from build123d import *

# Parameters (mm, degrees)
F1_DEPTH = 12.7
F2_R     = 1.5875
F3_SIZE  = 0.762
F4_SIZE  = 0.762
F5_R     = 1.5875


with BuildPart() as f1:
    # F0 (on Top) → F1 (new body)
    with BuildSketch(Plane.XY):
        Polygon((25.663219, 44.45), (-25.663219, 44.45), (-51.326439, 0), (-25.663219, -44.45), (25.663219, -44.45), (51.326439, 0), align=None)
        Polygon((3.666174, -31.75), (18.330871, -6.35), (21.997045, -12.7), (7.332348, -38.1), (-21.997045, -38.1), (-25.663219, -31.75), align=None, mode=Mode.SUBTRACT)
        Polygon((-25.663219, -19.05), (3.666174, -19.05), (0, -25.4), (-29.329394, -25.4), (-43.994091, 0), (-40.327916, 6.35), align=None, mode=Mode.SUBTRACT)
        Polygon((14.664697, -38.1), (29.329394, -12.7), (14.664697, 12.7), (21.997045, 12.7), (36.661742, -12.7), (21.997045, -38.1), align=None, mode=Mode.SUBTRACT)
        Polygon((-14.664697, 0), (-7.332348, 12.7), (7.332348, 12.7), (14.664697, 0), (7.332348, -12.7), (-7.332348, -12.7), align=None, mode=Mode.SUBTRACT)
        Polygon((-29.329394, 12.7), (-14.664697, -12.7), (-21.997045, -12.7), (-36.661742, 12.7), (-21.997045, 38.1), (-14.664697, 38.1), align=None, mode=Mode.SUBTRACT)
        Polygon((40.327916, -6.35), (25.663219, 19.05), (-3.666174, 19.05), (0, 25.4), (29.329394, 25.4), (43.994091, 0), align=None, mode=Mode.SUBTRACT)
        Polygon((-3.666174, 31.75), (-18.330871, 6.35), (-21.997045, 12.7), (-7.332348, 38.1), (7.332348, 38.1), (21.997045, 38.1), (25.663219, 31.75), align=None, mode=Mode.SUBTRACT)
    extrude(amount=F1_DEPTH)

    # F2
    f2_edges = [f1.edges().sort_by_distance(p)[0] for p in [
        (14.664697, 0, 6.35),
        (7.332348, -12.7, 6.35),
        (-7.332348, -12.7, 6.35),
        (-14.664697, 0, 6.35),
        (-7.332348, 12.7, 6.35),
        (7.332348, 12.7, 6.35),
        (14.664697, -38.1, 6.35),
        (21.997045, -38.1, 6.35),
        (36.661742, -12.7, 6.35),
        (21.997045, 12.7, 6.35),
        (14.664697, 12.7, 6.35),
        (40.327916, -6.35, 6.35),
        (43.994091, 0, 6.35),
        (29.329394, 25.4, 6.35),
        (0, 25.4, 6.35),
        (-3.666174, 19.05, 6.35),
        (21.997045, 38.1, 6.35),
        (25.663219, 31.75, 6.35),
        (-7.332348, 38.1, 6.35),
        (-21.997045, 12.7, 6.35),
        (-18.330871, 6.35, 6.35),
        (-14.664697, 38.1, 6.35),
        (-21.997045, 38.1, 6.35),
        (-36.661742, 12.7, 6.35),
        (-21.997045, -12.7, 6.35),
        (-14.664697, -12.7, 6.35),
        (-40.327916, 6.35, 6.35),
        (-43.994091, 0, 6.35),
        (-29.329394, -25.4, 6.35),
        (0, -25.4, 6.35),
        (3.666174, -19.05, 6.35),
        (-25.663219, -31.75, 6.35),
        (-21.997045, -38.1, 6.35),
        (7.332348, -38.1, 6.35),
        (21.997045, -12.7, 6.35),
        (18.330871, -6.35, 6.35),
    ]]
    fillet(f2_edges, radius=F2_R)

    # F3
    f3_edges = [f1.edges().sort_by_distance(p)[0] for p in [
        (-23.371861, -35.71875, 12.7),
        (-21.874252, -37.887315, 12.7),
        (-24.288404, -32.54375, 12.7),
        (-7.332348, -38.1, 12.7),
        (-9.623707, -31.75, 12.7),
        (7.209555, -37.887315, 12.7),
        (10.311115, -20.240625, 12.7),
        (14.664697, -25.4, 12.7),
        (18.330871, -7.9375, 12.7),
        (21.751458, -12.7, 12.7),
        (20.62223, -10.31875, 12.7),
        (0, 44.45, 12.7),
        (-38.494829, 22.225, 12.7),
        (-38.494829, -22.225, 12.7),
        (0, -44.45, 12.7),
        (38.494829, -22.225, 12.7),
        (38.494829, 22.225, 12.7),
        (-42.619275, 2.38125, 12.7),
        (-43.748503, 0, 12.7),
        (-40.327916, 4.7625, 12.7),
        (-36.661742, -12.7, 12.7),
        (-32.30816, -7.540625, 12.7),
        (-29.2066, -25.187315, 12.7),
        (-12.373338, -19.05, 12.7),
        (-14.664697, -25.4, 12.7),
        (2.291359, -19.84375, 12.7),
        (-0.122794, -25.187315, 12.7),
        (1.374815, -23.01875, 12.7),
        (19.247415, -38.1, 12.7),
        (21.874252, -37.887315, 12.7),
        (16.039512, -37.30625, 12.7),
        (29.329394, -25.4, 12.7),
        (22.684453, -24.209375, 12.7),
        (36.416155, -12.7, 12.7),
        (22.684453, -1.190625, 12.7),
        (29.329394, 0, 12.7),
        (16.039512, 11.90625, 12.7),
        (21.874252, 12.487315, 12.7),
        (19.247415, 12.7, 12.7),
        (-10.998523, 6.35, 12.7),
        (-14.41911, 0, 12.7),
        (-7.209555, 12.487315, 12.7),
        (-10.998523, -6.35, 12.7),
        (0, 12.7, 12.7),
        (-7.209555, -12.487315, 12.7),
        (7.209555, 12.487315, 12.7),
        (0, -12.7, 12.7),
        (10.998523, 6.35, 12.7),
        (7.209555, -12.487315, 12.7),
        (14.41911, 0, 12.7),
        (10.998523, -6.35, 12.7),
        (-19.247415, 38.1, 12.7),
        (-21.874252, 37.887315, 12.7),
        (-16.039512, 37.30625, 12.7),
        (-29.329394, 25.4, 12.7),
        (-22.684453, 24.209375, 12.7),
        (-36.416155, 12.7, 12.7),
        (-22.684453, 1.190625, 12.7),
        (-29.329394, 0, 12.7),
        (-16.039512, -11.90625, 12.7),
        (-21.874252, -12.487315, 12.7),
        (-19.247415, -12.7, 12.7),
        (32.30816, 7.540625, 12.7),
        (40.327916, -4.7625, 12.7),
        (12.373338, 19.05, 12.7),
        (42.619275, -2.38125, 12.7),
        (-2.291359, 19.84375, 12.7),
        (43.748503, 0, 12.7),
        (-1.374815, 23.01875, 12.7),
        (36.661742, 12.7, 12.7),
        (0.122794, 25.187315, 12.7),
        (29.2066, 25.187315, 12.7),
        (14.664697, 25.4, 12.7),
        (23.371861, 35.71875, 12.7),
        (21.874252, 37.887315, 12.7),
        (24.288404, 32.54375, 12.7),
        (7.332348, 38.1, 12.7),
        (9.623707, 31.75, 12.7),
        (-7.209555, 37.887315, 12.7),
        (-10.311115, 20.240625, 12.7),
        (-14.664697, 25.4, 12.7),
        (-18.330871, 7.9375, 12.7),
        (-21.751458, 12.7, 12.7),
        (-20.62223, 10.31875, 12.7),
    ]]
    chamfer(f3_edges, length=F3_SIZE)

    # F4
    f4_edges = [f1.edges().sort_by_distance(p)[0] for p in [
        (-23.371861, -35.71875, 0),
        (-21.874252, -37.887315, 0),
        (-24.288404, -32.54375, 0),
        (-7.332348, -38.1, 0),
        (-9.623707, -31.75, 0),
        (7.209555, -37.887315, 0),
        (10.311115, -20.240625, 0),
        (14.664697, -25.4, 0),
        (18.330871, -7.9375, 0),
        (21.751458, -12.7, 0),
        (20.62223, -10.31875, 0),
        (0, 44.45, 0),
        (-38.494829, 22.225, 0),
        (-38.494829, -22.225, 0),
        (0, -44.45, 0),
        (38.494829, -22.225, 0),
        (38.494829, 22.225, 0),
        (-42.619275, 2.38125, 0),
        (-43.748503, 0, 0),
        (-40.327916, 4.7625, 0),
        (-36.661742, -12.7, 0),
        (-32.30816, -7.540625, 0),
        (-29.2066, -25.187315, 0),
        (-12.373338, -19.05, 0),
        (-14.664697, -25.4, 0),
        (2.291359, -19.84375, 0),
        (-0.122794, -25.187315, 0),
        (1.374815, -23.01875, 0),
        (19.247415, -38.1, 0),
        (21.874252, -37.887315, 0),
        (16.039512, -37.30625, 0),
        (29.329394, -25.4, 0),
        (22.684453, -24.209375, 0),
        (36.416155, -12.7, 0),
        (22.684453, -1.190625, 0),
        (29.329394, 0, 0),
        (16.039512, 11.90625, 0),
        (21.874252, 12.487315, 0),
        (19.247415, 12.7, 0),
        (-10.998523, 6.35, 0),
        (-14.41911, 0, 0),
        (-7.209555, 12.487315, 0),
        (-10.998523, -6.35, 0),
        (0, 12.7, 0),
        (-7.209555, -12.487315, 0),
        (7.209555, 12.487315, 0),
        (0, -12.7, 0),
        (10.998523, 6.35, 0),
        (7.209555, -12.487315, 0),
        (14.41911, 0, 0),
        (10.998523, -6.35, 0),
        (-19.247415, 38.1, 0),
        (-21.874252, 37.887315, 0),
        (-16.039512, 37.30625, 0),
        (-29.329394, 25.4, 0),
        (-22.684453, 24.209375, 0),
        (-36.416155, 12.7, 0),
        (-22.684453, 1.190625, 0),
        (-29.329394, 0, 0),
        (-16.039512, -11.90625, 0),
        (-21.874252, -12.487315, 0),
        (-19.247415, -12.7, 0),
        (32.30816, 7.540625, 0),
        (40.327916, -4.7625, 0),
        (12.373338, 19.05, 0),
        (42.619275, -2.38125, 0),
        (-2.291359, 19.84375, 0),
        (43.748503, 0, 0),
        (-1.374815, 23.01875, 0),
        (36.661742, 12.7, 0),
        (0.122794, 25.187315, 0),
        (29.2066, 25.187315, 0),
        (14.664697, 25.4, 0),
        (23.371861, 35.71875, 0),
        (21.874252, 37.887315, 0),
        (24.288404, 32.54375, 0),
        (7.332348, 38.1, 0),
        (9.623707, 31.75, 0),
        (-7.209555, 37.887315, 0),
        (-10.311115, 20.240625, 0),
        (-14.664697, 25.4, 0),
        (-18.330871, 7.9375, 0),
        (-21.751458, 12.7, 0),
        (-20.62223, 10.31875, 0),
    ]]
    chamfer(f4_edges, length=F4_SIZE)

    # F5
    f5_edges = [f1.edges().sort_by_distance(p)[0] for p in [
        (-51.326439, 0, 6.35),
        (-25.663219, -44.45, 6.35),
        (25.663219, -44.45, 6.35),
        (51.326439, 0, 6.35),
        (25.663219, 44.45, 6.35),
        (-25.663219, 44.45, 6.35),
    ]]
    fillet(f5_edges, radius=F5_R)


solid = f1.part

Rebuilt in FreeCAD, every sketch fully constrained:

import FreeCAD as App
import Part
import Sketcher

V = App.Vector
Q = App.Units.Quantity


def edges_at(feature, points):
    """Names of the edges that pass closest to the given points."""
    edges = feature.Shape.Edges
    near = lambda p: min(range(len(edges)), key=lambda i: edges[i].distToShape(Part.Vertex(*p))[0])
    return sorted({f"Edge{near(p) + 1}" for p in points})

doc = App.newDocument("Part")
params = doc.addObject("Spreadsheet::Sheet", "Params")
for row, (alias, value) in enumerate([
    ("pad1_length", "0.5 in"),
    ("fillet_radius", "0.0625 in"),
    ("chamfer_size", "0.03 in"),
    ("chamfer2_size", "0.03 in"),
    ("fillet2_radius", "0.0625 in"),
], start=1):
    params.set(f"A{row}", alias)
    params.set(f"B{row}", "=" + value)
    params.setAlias(f"B{row}", alias)

body = doc.addObject("PartDesign::Body", "Body")

sketch1 = body.newObject("Sketcher::SketchObject", "Sketch")
sketch1.AttachmentSupport = (doc.getObject("XY_Plane"), [""])
sketch1.MapMode = "FlatFace"
sketch1.addGeometry([
    Part.LineSegment(V(26, 44, 0), V(-26, 44, 0)),
    Part.LineSegment(V(-26, 44, 0), V(-51, 0, 0)),
    Part.LineSegment(V(-51, 0, 0), V(-26, -44, 0)),
    Part.LineSegment(V(-26, -44, 0), V(26, -44, 0)),
    Part.LineSegment(V(26, -44, 0), V(51, 0, 0)),
    Part.LineSegment(V(51, 0, 0), V(26, 44, 0)),
    Part.LineSegment(V(-26, -32, 0), V(4, -32, 0)),
    Part.LineSegment(V(4, -32, 0), V(18, -6, 0)),
    Part.LineSegment(V(18, -6, 0), V(22, -13, 0)),
    Part.LineSegment(V(22, -13, 0), V(7, -38, 0)),
    Part.LineSegment(V(7, -38, 0), V(-22, -38, 0)),
    Part.LineSegment(V(-22, -38, 0), V(-26, -32, 0)),
    Part.LineSegment(V(-40, 6, 0), V(-26, -19, 0)),
    Part.LineSegment(V(-26, -19, 0), V(4, -19, 0)),
    Part.LineSegment(V(4, -19, 0), V(0, -25, 0)),
    Part.LineSegment(V(0, -25, 0), V(-29, -25, 0)),
    Part.LineSegment(V(-29, -25, 0), V(-44, 0, 0)),
    Part.LineSegment(V(-44, 0, 0), V(-40, 6, 0)),
    Part.LineSegment(V(22, -38, 0), V(15, -38, 0)),
    Part.LineSegment(V(15, -38, 0), V(29, -13, 0)),
    Part.LineSegment(V(29, -13, 0), V(15, 13, 0)),
    Part.LineSegment(V(15, 13, 0), V(22, 13, 0)),
    Part.LineSegment(V(22, 13, 0), V(37, -13, 0)),
    Part.LineSegment(V(37, -13, 0), V(22, -38, 0)),
    Part.LineSegment(V(-15, 38, 0), V(-29, 13, 0)),
    Part.LineSegment(V(-29, 13, 0), V(-15, -13, 0)),
    Part.LineSegment(V(-15, -13, 0), V(-22, -13, 0)),
    Part.LineSegment(V(-22, -13, 0), V(-37, 13, 0)),
    Part.LineSegment(V(-37, 13, 0), V(-22, 38, 0)),
    Part.LineSegment(V(-22, 38, 0), V(-15, 38, 0)),
    Part.LineSegment(V(-7, -13, 0), V(-15, 0, 0)),
    Part.LineSegment(V(-15, 0, 0), V(-7, 13, 0)),
    Part.LineSegment(V(-7, 13, 0), V(7, 13, 0)),
    Part.LineSegment(V(7, 13, 0), V(15, 0, 0)),
    Part.LineSegment(V(15, 0, 0), V(7, -13, 0)),
    Part.LineSegment(V(7, -13, 0), V(-7, -13, 0)),
    Part.LineSegment(V(44, 0, 0), V(40, -6, 0)),
    Part.LineSegment(V(40, -6, 0), V(26, 19, 0)),
    Part.LineSegment(V(26, 19, 0), V(-4, 19, 0)),
    Part.LineSegment(V(-4, 19, 0), V(0, 25, 0)),
    Part.LineSegment(V(0, 25, 0), V(29, 25, 0)),
    Part.LineSegment(V(29, 25, 0), V(44, 0, 0)),
    Part.LineSegment(V(26, 32, 0), V(-4, 32, 0)),
    Part.LineSegment(V(-4, 32, 0), V(-18, 6, 0)),
    Part.LineSegment(V(-18, 6, 0), V(-22, 13, 0)),
    Part.LineSegment(V(-22, 13, 0), V(-7, 38, 0)),
    Part.LineSegment(V(-7, 38, 0), V(22, 38, 0)),
    Part.LineSegment(V(22, 38, 0), V(26, 32, 0)),
], False)
sketch1.addConstraint([
    Sketcher.Constraint("Coincident", 0, 2, 1, 1),
    Sketcher.Constraint("Coincident", 1, 2, 2, 1),
    Sketcher.Constraint("Coincident", 2, 2, 3, 1),
    Sketcher.Constraint("Coincident", 3, 2, 4, 1),
    Sketcher.Constraint("Coincident", 4, 2, 5, 1),
    Sketcher.Constraint("Coincident", 5, 2, 0, 1),
    Sketcher.Constraint("Coincident", 6, 2, 7, 1),
    Sketcher.Constraint("Coincident", 7, 2, 8, 1),
    Sketcher.Constraint("Coincident", 8, 2, 9, 1),
    Sketcher.Constraint("Coincident", 9, 2, 10, 1),
    Sketcher.Constraint("Coincident", 10, 2, 11, 1),
    Sketcher.Constraint("Coincident", 11, 2, 6, 1),
    Sketcher.Constraint("Coincident", 12, 2, 13, 1),
    Sketcher.Constraint("Coincident", 13, 2, 14, 1),
    Sketcher.Constraint("Coincident", 14, 2, 15, 1),
    Sketcher.Constraint("Coincident", 15, 2, 16, 1),
    Sketcher.Constraint("Coincident", 16, 2, 17, 1),
    Sketcher.Constraint("Coincident", 17, 2, 12, 1),
    Sketcher.Constraint("Coincident", 18, 2, 19, 1),
    Sketcher.Constraint("Coincident", 19, 2, 20, 1),
    Sketcher.Constraint("Coincident", 20, 2, 21, 1),
    Sketcher.Constraint("Coincident", 21, 2, 22, 1),
    Sketcher.Constraint("Coincident", 22, 2, 23, 1),
    Sketcher.Constraint("Coincident", 23, 2, 18, 1),
    Sketcher.Constraint("Coincident", 24, 2, 25, 1),
    Sketcher.Constraint("Coincident", 25, 2, 26, 1),
    Sketcher.Constraint("Coincident", 26, 2, 27, 1),
    Sketcher.Constraint("Coincident", 27, 2, 28, 1),
    Sketcher.Constraint("Coincident", 28, 2, 29, 1),
    Sketcher.Constraint("Coincident", 29, 2, 24, 1),
    Sketcher.Constraint("Coincident", 30, 2, 31, 1),
    Sketcher.Constraint("Coincident", 31, 2, 32, 1),
    Sketcher.Constraint("Coincident", 32, 2, 33, 1),
    Sketcher.Constraint("Coincident", 33, 2, 34, 1),
    Sketcher.Constraint("Coincident", 34, 2, 35, 1),
    Sketcher.Constraint("Coincident", 35, 2, 30, 1),
    Sketcher.Constraint("Coincident", 36, 2, 37, 1),
    Sketcher.Constraint("Coincident", 37, 2, 38, 1),
    Sketcher.Constraint("Coincident", 38, 2, 39, 1),
    Sketcher.Constraint("Coincident", 39, 2, 40, 1),
    Sketcher.Constraint("Coincident", 40, 2, 41, 1),
    Sketcher.Constraint("Coincident", 41, 2, 36, 1),
    Sketcher.Constraint("Coincident", 42, 2, 43, 1),
    Sketcher.Constraint("Coincident", 43, 2, 44, 1),
    Sketcher.Constraint("Coincident", 44, 2, 45, 1),
    Sketcher.Constraint("Coincident", 45, 2, 46, 1),
    Sketcher.Constraint("Coincident", 46, 2, 47, 1),
    Sketcher.Constraint("Coincident", 47, 2, 42, 1),
    Sketcher.Constraint("Horizontal", 0),
    Sketcher.Constraint("Horizontal", 3),
    Sketcher.Constraint("Horizontal", 6),
    Sketcher.Constraint("Horizontal", 10),
    Sketcher.Constraint("Horizontal", 13),
    Sketcher.Constraint("Horizontal", 15),
    Sketcher.Constraint("Horizontal", 18),
    Sketcher.Constraint("Horizontal", 21),
    Sketcher.Constraint("Horizontal", 26),
    Sketcher.Constraint("Horizontal", 29),
    Sketcher.Constraint("Horizontal", 32),
    Sketcher.Constraint("Horizontal", 35),
    Sketcher.Constraint("Horizontal", 38),
    Sketcher.Constraint("Horizontal", 40),
    Sketcher.Constraint("Horizontal", 42),
    Sketcher.Constraint("Horizontal", 46),
    Sketcher.Constraint("Symmetric", 0, 2, 3, 2, -1, 1),
    Sketcher.Constraint("Symmetric", 1, 2, 4, 2, -1, 1),
    Sketcher.Constraint("Symmetric", 19, 2, 24, 2, -1, 1),
    Sketcher.Constraint("Symmetric", 20, 2, 25, 2, -1, 1),
    Sketcher.Constraint("Symmetric", 22, 2, 27, 2, -1, 1),
    Sketcher.Constraint("Symmetric", 23, 2, 28, 2, -1, 1),
    Sketcher.Constraint("Symmetric", 30, 2, 33, 2, -1, 1),
    Sketcher.Constraint("Symmetric", 31, 2, 34, 2, -1, 1),
    Sketcher.Constraint("Symmetric", 17, 2, 36, 2, -1, 1),
    Sketcher.Constraint("Symmetric", 12, 2, 37, 2, -1, 1),
    Sketcher.Constraint("Symmetric", 14, 2, 39, 2, -1, 1),
    Sketcher.Constraint("Symmetric", 16, 2, 41, 2, -1, 1),
    Sketcher.Constraint("Symmetric", 6, 2, 42, 2, -1, 1),
    Sketcher.Constraint("Symmetric", 7, 2, 43, 2, -1, 1),
    Sketcher.Constraint("Symmetric", 8, 2, 44, 2, -1, 1),
    Sketcher.Constraint("Symmetric", 9, 2, 45, 2, -1, 1),
    Sketcher.Constraint("Symmetric", 10, 2, 23, 2, -2),
    Sketcher.Constraint("Symmetric", 8, 2, 26, 2, -2),
    Sketcher.Constraint("PointOnObject", 1, 2, -1),
    Sketcher.Constraint("PointOnObject", 14, 2, -2),
    Sketcher.Constraint("PointOnObject", 16, 2, -1),
    Sketcher.Constraint("PointOnObject", 30, 2, -1),
    Sketcher.Constraint("Parallel", 2, 5),
    Sketcher.Constraint("Parallel", 4, 7),
    Sketcher.Constraint("Parallel", 5, 8),
    Sketcher.Constraint("Parallel", 7, 9),
    Sketcher.Constraint("Parallel", 8, 11),
    Sketcher.Constraint("Parallel", 11, 12),
    Sketcher.Constraint("Parallel", 9, 14),
    Sketcher.Constraint("Parallel", 12, 16),
    Sketcher.Constraint("Parallel", 14, 17),
    Sketcher.Constraint("Parallel", 17, 19),
    Sketcher.Constraint("Parallel", 16, 20),
    Sketcher.Constraint("Parallel", 20, 22),
    Sketcher.Constraint("Parallel", 19, 23),
    Sketcher.Constraint("Parallel", 23, 24),
    Sketcher.Constraint("Parallel", 25, 27),
    Sketcher.Constraint("Parallel", 27, 30),
    Sketcher.Constraint("Parallel", 28, 31),
    Sketcher.Constraint("Parallel", 30, 33),
    Sketcher.Constraint("Parallel", 36, 39),
    Sketcher.Constraint("Parallel", 37, 41),
    Sketcher.Constraint("Parallel", 44, 47),
    Sketcher.Constraint("Horizontal", 8, 2, 19, 2),
    Sketcher.Constraint("Horizontal", 19, 2, 22, 2),
    Sketcher.Constraint("Horizontal", 27, 2, 31, 2),
    Sketcher.Constraint("Horizontal", 7, 2, 36, 2),
    Sketcher.Constraint("Vertical", 0, 2, 2, 2),
    Sketcher.Constraint("Vertical", 2, 2, 11, 2),
    Sketcher.Constraint("Vertical", 11, 2, 12, 2),
    Sketcher.Constraint("Vertical", 6, 2, 13, 2),
    Sketcher.Constraint("Vertical", 18, 2, 20, 2),
    Sketcher.Constraint("Vertical", 15, 2, 24, 2),
    Sketcher.Constraint("Vertical", 29, 2, 30, 2),
    Sketcher.Constraint("Vertical", 9, 2, 32, 2),
    Sketcher.Constraint("Vertical", 23, 2, 46, 2),
    Sketcher.Constraint("Equal", 6, 10),
    Sketcher.Constraint("Equal", 9, 12),
    Sketcher.Constraint("Equal", 11, 14),
    Sketcher.Constraint("DistanceY", 14, 2, -1, 1, Q("1 in")),
    Sketcher.Constraint("Angle", 1, Q("-120.000001 deg")),
    Sketcher.Constraint("DistanceY", 6, 2, 5, 2, Q("3 in")),
])
pad1 = body.newObject("PartDesign::Pad", "Pad")
pad1.Profile = sketch1
pad1.setExpression("Length", "Params.pad1_length")
doc.recompute()

fillet = body.newObject("PartDesign::Fillet", "Fillet")
fillet.Base = (pad1, edges_at(pad1, [
    (14.665, 0, 6.35),
    (7.332, -12.7, 6.35),
    (-7.332, -12.7, 6.35),
    (-14.665, 0, 6.35),
    (-7.332, 12.7, 6.35),
    (7.332, 12.7, 6.35),
    (14.665, -38.1, 6.35),
    (21.997, -38.1, 6.35),
    (36.662, -12.7, 6.35),
    (21.997, 12.7, 6.35),
    (14.665, 12.7, 6.35),
    (40.328, -6.35, 6.35),
    (43.994, 0, 6.35),
    (29.329, 25.4, 6.35),
    (0, 25.4, 6.35),
    (-3.666, 19.05, 6.35),
    (21.997, 38.1, 6.35),
    (25.663, 31.75, 6.35),
    (-7.332, 38.1, 6.35),
    (-21.997, 12.7, 6.35),
    (-18.331, 6.35, 6.35),
    (-14.665, 38.1, 6.35),
    (-21.997, 38.1, 6.35),
    (-36.662, 12.7, 6.35),
    (-21.997, -12.7, 6.35),
    (-14.665, -12.7, 6.35),
    (-40.328, 6.35, 6.35),
    (-43.994, 0, 6.35),
    (-29.329, -25.4, 6.35),
    (0, -25.4, 6.35),
    (3.666, -19.05, 6.35),
    (-25.663, -31.75, 6.35),
    (-21.997, -38.1, 6.35),
    (7.332, -38.1, 6.35),
    (21.997, -12.7, 6.35),
    (18.331, -6.35, 6.35),
]))
fillet.setExpression("Radius", "Params.fillet_radius")
doc.recompute()

chamfer = body.newObject("PartDesign::Chamfer", "Chamfer")
chamfer.Base = (fillet, edges_at(fillet, [
    (-23.372, -35.719, 12.7),
    (-21.874, -37.887, 12.7),
    (-24.288, -32.544, 12.7),
    (-7.332, -38.1, 12.7),
    (-9.624, -31.75, 12.7),
    (7.21, -37.887, 12.7),
    (10.311, -20.241, 12.7),
    (14.665, -25.4, 12.7),
    (18.331, -7.938, 12.7),
    (21.751, -12.7, 12.7),
    (20.622, -10.319, 12.7),
    (0, 44.45, 12.7),
    (-38.495, 22.225, 12.7),
    (-38.495, -22.225, 12.7),
    (0, -44.45, 12.7),
    (38.495, -22.225, 12.7),
    (38.495, 22.225, 12.7),
    (-42.619, 2.381, 12.7),
    (-43.749, 0, 12.7),
    (-40.328, 4.763, 12.7),
    (-36.662, -12.7, 12.7),
    (-32.308, -7.541, 12.7),
    (-29.207, -25.187, 12.7),
    (-12.373, -19.05, 12.7),
    (-14.665, -25.4, 12.7),
    (2.291, -19.844, 12.7),
    (-0.123, -25.187, 12.7),
    (1.375, -23.019, 12.7),
    (19.247, -38.1, 12.7),
    (21.874, -37.887, 12.7),
    (16.04, -37.306, 12.7),
    (29.329, -25.4, 12.7),
    (22.684, -24.209, 12.7),
    (36.416, -12.7, 12.7),
    (22.684, -1.191, 12.7),
    (29.329, 0, 12.7),
    (16.04, 11.906, 12.7),
    (21.874, 12.487, 12.7),
    (19.247, 12.7, 12.7),
    (-10.999, 6.35, 12.7),
    (-14.419, 0, 12.7),
    (-7.21, 12.487, 12.7),
    (-10.999, -6.35, 12.7),
    (0, 12.7, 12.7),
    (-7.21, -12.487, 12.7),
    (7.21, 12.487, 12.7),
    (0, -12.7, 12.7),
    (10.999, 6.35, 12.7),
    (7.21, -12.487, 12.7),
    (14.419, 0, 12.7),
    (10.999, -6.35, 12.7),
    (-19.247, 38.1, 12.7),
    (-21.874, 37.887, 12.7),
    (-16.04, 37.306, 12.7),
    (-29.329, 25.4, 12.7),
    (-22.684, 24.209, 12.7),
    (-36.416, 12.7, 12.7),
    (-22.684, 1.191, 12.7),
    (-29.329, 0, 12.7),
    (-16.04, -11.906, 12.7),
    (-21.874, -12.487, 12.7),
    (-19.247, -12.7, 12.7),
    (32.308, 7.541, 12.7),
    (40.328, -4.763, 12.7),
    (12.373, 19.05, 12.7),
    (42.619, -2.381, 12.7),
    (-2.291, 19.844, 12.7),
    (43.749, 0, 12.7),
    (-1.375, 23.019, 12.7),
    (36.662, 12.7, 12.7),
    (0.123, 25.187, 12.7),
    (29.207, 25.187, 12.7),
    (14.665, 25.4, 12.7),
    (23.372, 35.719, 12.7),
    (21.874, 37.887, 12.7),
    (24.288, 32.544, 12.7),
    (7.332, 38.1, 12.7),
    (9.624, 31.75, 12.7),
    (-7.21, 37.887, 12.7),
    (-10.311, 20.241, 12.7),
    (-14.665, 25.4, 12.7),
    (-18.331, 7.938, 12.7),
    (-21.751, 12.7, 12.7),
    (-20.622, 10.319, 12.7),
]))
chamfer.setExpression("Size", "Params.chamfer_size")
doc.recompute()

chamfer2 = body.newObject("PartDesign::Chamfer", "Chamfer001")
chamfer2.Base = (chamfer, edges_at(chamfer, [
    (-23.372, -35.719, 0),
    (-21.874, -37.887, 0),
    (-24.288, -32.544, 0),
    (-7.332, -38.1, 0),
    (-9.624, -31.75, 0),
    (7.21, -37.887, 0),
    (10.311, -20.241, 0),
    (14.665, -25.4, 0),
    (18.331, -7.938, 0),
    (21.751, -12.7, 0),
    (20.622, -10.319, 0),
    (0, 44.45, 0),
    (-38.495, 22.225, 0),
    (-38.495, -22.225, 0),
    (0, -44.45, 0),
    (38.495, -22.225, 0),
    (38.495, 22.225, 0),
    (-42.619, 2.381, 0),
    (-43.749, 0, 0),
    (-40.328, 4.763, 0),
    (-36.662, -12.7, 0),
    (-32.308, -7.541, 0),
    (-29.207, -25.187, 0),
    (-12.373, -19.05, 0),
    (-14.665, -25.4, 0),
    (2.291, -19.844, 0),
    (-0.123, -25.187, 0),
    (1.375, -23.019, 0),
    (19.247, -38.1, 0),
    (21.874, -37.887, 0),
    (16.04, -37.306, 0),
    (29.329, -25.4, 0),
    (22.684, -24.209, 0),
    (36.416, -12.7, 0),
    (22.684, -1.191, 0),
    (29.329, 0, 0),
    (16.04, 11.906, 0),
    (21.874, 12.487, 0),
    (19.247, 12.7, 0),
    (-10.999, 6.35, 0),
    (-14.419, 0, 0),
    (-7.21, 12.487, 0),
    (-10.999, -6.35, 0),
    (0, 12.7, 0),
    (-7.21, -12.487, 0),
    (7.21, 12.487, 0),
    (0, -12.7, 0),
    (10.999, 6.35, 0),
    (7.21, -12.487, 0),
    (14.419, 0, 0),
    (10.999, -6.35, 0),
    (-19.247, 38.1, 0),
    (-21.874, 37.887, 0),
    (-16.04, 37.306, 0),
    (-29.329, 25.4, 0),
    (-22.684, 24.209, 0),
    (-36.416, 12.7, 0),
    (-22.684, 1.191, 0),
    (-29.329, 0, 0),
    (-16.04, -11.906, 0),
    (-21.874, -12.487, 0),
    (-19.247, -12.7, 0),
    (32.308, 7.541, 0),
    (40.328, -4.763, 0),
    (12.373, 19.05, 0),
    (42.619, -2.381, 0),
    (-2.291, 19.844, 0),
    (43.749, 0, 0),
    (-1.375, 23.019, 0),
    (36.662, 12.7, 0),
    (0.123, 25.187, 0),
    (29.207, 25.187, 0),
    (14.665, 25.4, 0),
    (23.372, 35.719, 0),
    (21.874, 37.887, 0),
    (24.288, 32.544, 0),
    (7.332, 38.1, 0),
    (9.624, 31.75, 0),
    (-7.21, 37.887, 0),
    (-10.311, 20.241, 0),
    (-14.665, 25.4, 0),
    (-18.331, 7.938, 0),
    (-21.751, 12.7, 0),
    (-20.622, 10.319, 0),
]))
chamfer2.setExpression("Size", "Params.chamfer2_size")
doc.recompute()

fillet2 = body.newObject("PartDesign::Fillet", "Fillet001")
fillet2.Base = (chamfer2, edges_at(chamfer2, [
    (-51.326, 0, 6.35),
    (-25.663, -44.45, 6.35),
    (25.663, -44.45, 6.35),
    (51.326, 0, 6.35),
    (25.663, 44.45, 6.35),
    (-25.663, 44.45, 6.35),
]))
fillet2.setExpression("Radius", "Params.fillet2_radius")

doc.recompute()
